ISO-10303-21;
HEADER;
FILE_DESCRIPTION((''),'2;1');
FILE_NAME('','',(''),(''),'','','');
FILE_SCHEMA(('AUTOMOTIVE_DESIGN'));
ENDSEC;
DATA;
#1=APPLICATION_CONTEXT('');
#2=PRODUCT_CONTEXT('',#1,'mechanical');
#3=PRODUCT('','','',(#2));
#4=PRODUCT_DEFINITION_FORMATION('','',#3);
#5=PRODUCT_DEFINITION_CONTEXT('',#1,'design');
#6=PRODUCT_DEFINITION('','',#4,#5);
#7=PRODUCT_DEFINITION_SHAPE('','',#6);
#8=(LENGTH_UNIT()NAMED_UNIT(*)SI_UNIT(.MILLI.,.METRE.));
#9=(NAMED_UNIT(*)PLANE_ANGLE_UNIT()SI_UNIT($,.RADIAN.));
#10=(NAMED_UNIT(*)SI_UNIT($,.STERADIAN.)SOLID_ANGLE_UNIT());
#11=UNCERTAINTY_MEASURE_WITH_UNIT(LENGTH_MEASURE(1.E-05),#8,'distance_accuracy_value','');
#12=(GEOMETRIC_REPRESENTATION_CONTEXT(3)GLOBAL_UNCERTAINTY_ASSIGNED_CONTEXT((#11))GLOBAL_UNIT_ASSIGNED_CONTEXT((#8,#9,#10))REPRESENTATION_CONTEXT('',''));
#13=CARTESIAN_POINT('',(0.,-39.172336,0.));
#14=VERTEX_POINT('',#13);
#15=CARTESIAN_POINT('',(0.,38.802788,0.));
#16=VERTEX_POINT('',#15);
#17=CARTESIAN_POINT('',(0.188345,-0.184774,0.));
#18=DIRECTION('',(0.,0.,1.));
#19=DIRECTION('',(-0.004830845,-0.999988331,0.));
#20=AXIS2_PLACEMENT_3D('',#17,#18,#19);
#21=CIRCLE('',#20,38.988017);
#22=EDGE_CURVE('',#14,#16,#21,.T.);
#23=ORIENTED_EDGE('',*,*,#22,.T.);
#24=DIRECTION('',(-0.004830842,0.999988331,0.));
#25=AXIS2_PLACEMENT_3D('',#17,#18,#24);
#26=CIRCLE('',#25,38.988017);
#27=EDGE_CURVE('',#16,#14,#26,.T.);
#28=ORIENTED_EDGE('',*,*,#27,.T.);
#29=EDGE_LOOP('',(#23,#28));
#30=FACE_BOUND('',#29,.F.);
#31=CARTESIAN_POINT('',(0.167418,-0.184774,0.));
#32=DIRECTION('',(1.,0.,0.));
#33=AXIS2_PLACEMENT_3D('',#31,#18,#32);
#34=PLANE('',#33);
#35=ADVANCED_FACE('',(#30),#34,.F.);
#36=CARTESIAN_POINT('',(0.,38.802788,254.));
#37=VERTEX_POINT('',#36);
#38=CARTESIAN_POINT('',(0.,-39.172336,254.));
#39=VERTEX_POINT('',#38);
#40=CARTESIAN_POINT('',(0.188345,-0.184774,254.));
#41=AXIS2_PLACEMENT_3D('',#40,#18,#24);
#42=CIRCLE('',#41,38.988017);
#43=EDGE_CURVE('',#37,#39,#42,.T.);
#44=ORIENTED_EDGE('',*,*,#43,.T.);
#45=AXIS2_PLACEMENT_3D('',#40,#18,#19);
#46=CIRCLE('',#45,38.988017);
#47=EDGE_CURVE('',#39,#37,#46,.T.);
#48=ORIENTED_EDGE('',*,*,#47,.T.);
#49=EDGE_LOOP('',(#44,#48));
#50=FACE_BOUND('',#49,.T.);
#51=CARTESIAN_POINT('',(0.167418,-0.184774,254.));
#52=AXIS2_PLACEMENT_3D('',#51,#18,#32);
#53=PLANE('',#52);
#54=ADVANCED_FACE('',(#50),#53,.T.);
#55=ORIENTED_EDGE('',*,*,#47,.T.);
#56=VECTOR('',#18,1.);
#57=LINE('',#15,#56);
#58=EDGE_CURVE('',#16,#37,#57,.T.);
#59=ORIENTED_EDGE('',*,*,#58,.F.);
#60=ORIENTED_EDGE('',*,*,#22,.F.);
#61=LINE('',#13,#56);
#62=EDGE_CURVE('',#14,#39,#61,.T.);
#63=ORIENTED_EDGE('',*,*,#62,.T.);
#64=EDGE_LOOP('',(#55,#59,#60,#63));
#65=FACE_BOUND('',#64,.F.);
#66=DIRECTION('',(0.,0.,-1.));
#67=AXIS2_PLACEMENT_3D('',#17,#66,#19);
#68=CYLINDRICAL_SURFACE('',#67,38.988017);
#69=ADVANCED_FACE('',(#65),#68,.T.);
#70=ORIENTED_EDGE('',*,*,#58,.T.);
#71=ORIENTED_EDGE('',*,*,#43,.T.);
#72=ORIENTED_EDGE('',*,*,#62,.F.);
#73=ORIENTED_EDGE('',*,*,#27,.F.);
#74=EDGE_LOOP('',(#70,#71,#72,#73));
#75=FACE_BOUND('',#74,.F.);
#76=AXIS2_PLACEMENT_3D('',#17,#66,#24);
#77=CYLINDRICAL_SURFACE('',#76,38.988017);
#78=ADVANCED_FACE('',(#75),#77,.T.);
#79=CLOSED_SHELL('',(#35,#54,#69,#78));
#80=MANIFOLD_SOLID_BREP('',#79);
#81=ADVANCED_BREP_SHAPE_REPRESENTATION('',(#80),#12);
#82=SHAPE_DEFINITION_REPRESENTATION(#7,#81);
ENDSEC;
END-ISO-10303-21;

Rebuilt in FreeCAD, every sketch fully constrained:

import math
import FreeCAD as App
import Part
import Sketcher
Q = App.Units.Quantity

doc = App.newDocument("Part")
body = doc.addObject("PartDesign::Body", "Body")

# Sketch on XY plane
sketch1 = body.newObject("Sketcher::SketchObject", "Sketch")
sketch1.AttachmentSupport = (doc.getObject("XY_Plane"), [""])
sketch1.MapMode = "FlatFace"
sketch1.addGeometry(Part.ArcOfCircle(Part.Circle(App.Vector(0, 0, 0), App.Vector(0, 0, 1), 39), math.radians(90), math.radians(270)), False)
sketch1.addGeometry(Part.ArcOfCircle(Part.Circle(App.Vector(0, 0, 0), App.Vector(0, 0, 1), 39), math.radians(-90), math.radians(90)), False)
sketch1.addConstraint(Sketcher.Constraint("Tangent", 0, 1, 1, 2))
sketch1.addConstraint(Sketcher.Constraint("Coincident", 1, 1, 0, 2))
sketch1.addConstraint(Sketcher.Constraint("PointOnObject", 0, 1, -2))
sketch1.addConstraint(Sketcher.Constraint("PointOnObject", 1, 1, -2))
sketch1.addConstraint(Sketcher.Constraint("Radius", 0, Q("38.988017 mm")))
sketch1.addConstraint(Sketcher.Constraint("DistanceY", -1, 1, 0, 1, Q("38.802788 mm")))
sketch1.addConstraint(Sketcher.Constraint("DistanceX", -1, 1, 0, 3, Q("0.188345 mm")))
pad1 = body.newObject("PartDesign::Pad", "Pad")
pad1.Profile = sketch1
pad1.Length = Q("10 in")

doc.recompute()
